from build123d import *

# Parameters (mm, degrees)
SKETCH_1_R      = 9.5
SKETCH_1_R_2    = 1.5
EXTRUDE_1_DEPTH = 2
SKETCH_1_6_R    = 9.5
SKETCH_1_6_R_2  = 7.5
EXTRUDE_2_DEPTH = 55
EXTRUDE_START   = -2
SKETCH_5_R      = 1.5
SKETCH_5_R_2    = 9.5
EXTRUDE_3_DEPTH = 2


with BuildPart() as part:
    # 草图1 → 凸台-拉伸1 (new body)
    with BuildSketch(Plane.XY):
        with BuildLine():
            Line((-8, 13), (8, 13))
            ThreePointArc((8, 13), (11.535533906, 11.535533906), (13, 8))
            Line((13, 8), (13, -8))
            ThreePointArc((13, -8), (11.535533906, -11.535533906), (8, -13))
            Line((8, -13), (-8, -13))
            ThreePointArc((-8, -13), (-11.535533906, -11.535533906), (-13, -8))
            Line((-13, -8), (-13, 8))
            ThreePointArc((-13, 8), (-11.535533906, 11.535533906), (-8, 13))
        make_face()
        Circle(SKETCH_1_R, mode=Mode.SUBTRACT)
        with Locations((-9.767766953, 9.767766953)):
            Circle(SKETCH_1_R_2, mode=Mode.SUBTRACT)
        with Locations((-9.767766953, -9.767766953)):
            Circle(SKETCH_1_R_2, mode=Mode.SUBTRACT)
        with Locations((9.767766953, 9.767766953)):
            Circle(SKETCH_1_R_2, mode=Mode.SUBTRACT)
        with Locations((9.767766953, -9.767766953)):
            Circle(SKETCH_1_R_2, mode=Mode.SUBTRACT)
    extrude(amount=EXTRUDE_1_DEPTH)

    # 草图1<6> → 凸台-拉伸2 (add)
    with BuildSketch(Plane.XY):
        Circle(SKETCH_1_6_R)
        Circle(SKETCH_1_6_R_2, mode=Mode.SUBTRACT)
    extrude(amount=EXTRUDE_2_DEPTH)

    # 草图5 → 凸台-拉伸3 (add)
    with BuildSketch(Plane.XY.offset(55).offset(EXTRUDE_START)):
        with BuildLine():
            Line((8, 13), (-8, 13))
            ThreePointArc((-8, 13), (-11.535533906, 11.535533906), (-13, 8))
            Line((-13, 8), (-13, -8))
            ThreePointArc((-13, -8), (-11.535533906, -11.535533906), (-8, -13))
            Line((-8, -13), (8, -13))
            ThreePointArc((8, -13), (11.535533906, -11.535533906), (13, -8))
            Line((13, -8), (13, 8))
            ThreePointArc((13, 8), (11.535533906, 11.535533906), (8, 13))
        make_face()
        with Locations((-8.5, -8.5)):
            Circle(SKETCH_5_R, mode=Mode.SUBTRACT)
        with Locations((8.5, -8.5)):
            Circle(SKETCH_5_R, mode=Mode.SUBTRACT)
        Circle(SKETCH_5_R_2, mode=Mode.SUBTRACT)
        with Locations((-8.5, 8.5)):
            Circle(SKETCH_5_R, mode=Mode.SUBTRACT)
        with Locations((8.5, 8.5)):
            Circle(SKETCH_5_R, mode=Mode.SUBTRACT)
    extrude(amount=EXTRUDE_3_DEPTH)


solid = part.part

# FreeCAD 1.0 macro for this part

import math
import FreeCAD as App
import Part
import Sketcher
Q = App.Units.Quantity

doc = App.newDocument("Part")
body = doc.addObject("PartDesign::Body", "Body")

# Sketch on XY plane
sketch1 = doc.addObject("Sketcher::SketchObject", "Sketch")
body.addObject(sketch1)
sketch1.AttachmentSupport = (doc.XY_Plane, [""])
sketch1.MapMode = "FlatFace"
sketch1.addGeometry([
    Part.LineSegment(App.Vector(8, 13, 0), App.Vector(-8, 13, 0)),  # 0
    Part.ArcOfCircle(Part.Circle(App.Vector(-8, 8, 0), App.Vector(0, 0, 1), 5), math.radians(90), math.radians(180)),  # 1
    Part.LineSegment(App.Vector(-13, 8, 0), App.Vector(-13, -8, 0)),  # 2
    Part.ArcOfCircle(Part.Circle(App.Vector(-8, -8, 0), App.Vector(0, 0, 1), 5), math.radians(180), math.radians(270)),  # 3
    Part.LineSegment(App.Vector(-8, -13, 0), App.Vector(8, -13, 0)),  # 4
    Part.ArcOfCircle(Part.Circle(App.Vector(8, -8, 0), App.Vector(0, 0, 1), 5), math.radians(-90), math.radians(0)),  # 5
    Part.LineSegment(App.Vector(13, -8, 0), App.Vector(13, 8, 0)),  # 6
    Part.ArcOfCircle(Part.Circle(App.Vector(8, 8, 0), App.Vector(0, 0, 1), 5), math.radians(0), math.radians(90)),  # 7
    Part.Circle(App.Vector(9.8, -9.8, 0), App.Vector(0, 0, 1), 1.5),  # 8
    Part.Circle(App.Vector(-9.8, -9.8, 0), App.Vector(0, 0, 1), 1.5),  # 9
    Part.Circle(App.Vector(9.8, 9.8, 0), App.Vector(0, 0, 1), 1.5),  # 10
    Part.Circle(App.Vector(0, 0, 0), App.Vector(0, 0, 1), 9.5),  # 11
    Part.Circle(App.Vector(-9.8, 9.8, 0), App.Vector(0, 0, 1), 1.5),  # 12
], False)
sketch1.addConstraint([
    Sketcher.Constraint("Tangent", 0, 2, 1, 1),
    Sketcher.Constraint("Tangent", 1, 2, 2, 1),
    Sketcher.Constraint("Tangent", 2, 2, 3, 1),
    Sketcher.Constraint("Tangent", 3, 2, 4, 1),
    Sketcher.Constraint("Tangent", 4, 2, 5, 1),
    Sketcher.Constraint("Tangent", 5, 2, 6, 1),
    Sketcher.Constraint("Tangent", 6, 2, 7, 1),
    Sketcher.Constraint("Tangent", 7, 2, 0, 1),
    Sketcher.Constraint("Horizontal", 0),
    Sketcher.Constraint("Vertical", 2),
    Sketcher.Constraint("Horizontal", 4),
    Sketcher.Constraint("Vertical", 6),
    Sketcher.Constraint("Coincident", 11, 3, -1, 1),
    Sketcher.Constraint("Equal", 1, 3),
    Sketcher.Constraint("Equal", 3, 5),
    Sketcher.Constraint("Equal", 5, 7),
    Sketcher.Constraint("Equal", 8, 9),
    Sketcher.Constraint("Equal", 9, 10),
    Sketcher.Constraint("Equal", 10, 12),
    Sketcher.Constraint("Symmetric", 1, 3, 5, 3, -1, 1),
    Sketcher.Constraint("Symmetric", 9, 3, 10, 3, -1, 1),
    Sketcher.Constraint("Symmetric", 8, 3, 12, 3, -1, 1),
    Sketcher.Constraint("Symmetric", 8, 3, 9, 3, -2),
    Sketcher.Constraint("Equal", 4, 2),
    Sketcher.Constraint("Diameter", 8, Q("3 mm")),
    Sketcher.Constraint("Diameter", 11, Q("19 mm")),
    Sketcher.Constraint("Radius", 1, Q("5 mm")),
    Sketcher.Constraint("DistanceX", 0, 2, 0, 1, Q("16 mm")),
    Sketcher.Constraint("DistanceX", -1, 1, 8, 3, Q("9.767767 mm")),
    Sketcher.Constraint("DistanceY", 8, 3, -1, 1, Q("9.767767 mm")),
])
pad1 = doc.addObject("PartDesign::Pad", "Pad")
body.addObject(pad1)
pad1.Profile = sketch1
pad1.Length = 2

# Sketch on XY plane
sketch2 = doc.addObject("Sketcher::SketchObject", "Sketch001")
body.addObject(sketch2)
sketch2.AttachmentSupport = (doc.XY_Plane, [""])
sketch2.MapMode = "FlatFace"
sketch2.addGeometry([
    Part.Circle(App.Vector(0, 0, 0), App.Vector(0, 0, 1), 10),
    Part.Circle(App.Vector(0, 0, 0), App.Vector(0, 0, 1), 8),
], False)
sketch2.addConstraint([
    Sketcher.Constraint("Coincident", 0, 3, -1, 1),
    Sketcher.Constraint("Coincident", 1, 3, -1, 1),
    Sketcher.Constraint("Diameter", 0, Q("19 mm")),
    Sketcher.Constraint("Diameter", 1, Q("15 mm")),
])
pad2 = doc.addObject("PartDesign::Pad", "Pad001")
body.addObject(pad2)
pad2.Profile = sketch2
pad2.Length = 55

# Sketch on XY plane
sketch3 = doc.addObject("Sketcher::SketchObject", "Sketch002")
body.addObject(sketch3)
sketch3.AttachmentSupport = (doc.XY_Plane, [""])
sketch3.MapMode = "FlatFace"
sketch3.AttachmentOffset = App.Placement(App.Vector(0, 0, 53), App.Rotation())
sketch3.addGeometry([
    Part.LineSegment(App.Vector(8, 13, 0), App.Vector(-8, 13, 0)),  # 0
    Part.ArcOfCircle(Part.Circle(App.Vector(-8, 8, 0), App.Vector(0, 0, 1), 5), math.radians(90), math.radians(180)),  # 1
    Part.LineSegment(App.Vector(-13, 8, 0), App.Vector(-13, -8, 0)),  # 2
    Part.ArcOfCircle(Part.Circle(App.Vector(-8, -8, 0), App.Vector(0, 0, 1), 5), math.radians(180), math.radians(270)),  # 3
    Part.LineSegment(App.Vector(-8, -13, 0), App.Vector(8, -13, 0)),  # 4
    Part.ArcOfCircle(Part.Circle(App.Vector(8, -8, 0), App.Vector(0, 0, 1), 5), math.radians(-90), math.radians(0)),  # 5
    Part.LineSegment(App.Vector(13, -8, 0), App.Vector(13, 8, 0)),  # 6
    Part.ArcOfCircle(Part.Circle(App.Vector(8, 8, 0), App.Vector(0, 0, 1), 5), math.radians(0), math.radians(90)),  # 7
    Part.Circle(App.Vector(-8.5, -8.5, 0), App.Vector(0, 0, 1), 1.5),  # 8
    Part.Circle(App.Vector(8.5, -8.5, 0), App.Vector(0, 0, 1), 1.5),  # 9
    Part.Circle(App.Vector(-8.5, 8.5, 0), App.Vector(0, 0, 1), 1.5),  # 10
    Part.Circle(App.Vector(0, 0, 0), App.Vector(0, 0, 1), 9.5),  # 11
    Part.Circle(App.Vector(8.5, 8.5, 0), App.Vector(0, 0, 1), 1.5),  # 12
], False)
sketch3.addConstraint([
    Sketcher.Constraint("Tangent", 0, 2, 1, 1),
    Sketcher.Constraint("Tangent", 1, 2, 2, 1),
    Sketcher.Constraint("Tangent", 2, 2, 3, 1),
    Sketcher.Constraint("Tangent", 3, 2, 4, 1),
    Sketcher.Constraint("Tangent", 4, 2, 5, 1),
    Sketcher.Constraint("Tangent", 5, 2, 6, 1),
    Sketcher.Constraint("Tangent", 6, 2, 7, 1),
    Sketcher.Constraint("Tangent", 7, 2, 0, 1),
    Sketcher.Constraint("Horizontal", 0),
    Sketcher.Constraint("Vertical", 2),
    Sketcher.Constraint("Horizontal", 4),
    Sketcher.Constraint("Vertical", 6),
    Sketcher.Constraint("Coincident", 11, 3, -1, 1),
    Sketcher.Constraint("Equal", 1, 3),
    Sketcher.Constraint("Equal", 3, 5),
    Sketcher.Constraint("Equal", 5, 7),
    Sketcher.Constraint("Equal", 8, 9),
    Sketcher.Constraint("Equal", 9, 10),
    Sketcher.Constraint("Equal", 10, 12),
    Sketcher.Constraint("Symmetric", 1, 3, 5, 3, -1, 1),
    Sketcher.Constraint("Symmetric", 9, 3, 10, 3, -1, 1),
    Sketcher.Constraint("Symmetric", 8, 3, 12, 3, -1, 1),
    Sketcher.Constraint("Symmetric", 8, 3, 9, 3, -2),
    Sketcher.Constraint("Equal", 4, 2),
    Sketcher.Constraint("Diameter", 8, Q("3 mm")),
    Sketcher.Constraint("Diameter", 11, Q("19 mm")),
    Sketcher.Constraint("Radius", 1, Q("5 mm")),
    Sketcher.Constraint("DistanceX", 0, 2, 0, 1, Q("16 mm")),
    Sketcher.Constraint("DistanceX", 8, 3, 9, 3, Q("17 mm")),
    Sketcher.Constraint("DistanceY", 8, 3, 10, 3, Q("17 mm")),
])
pad3 = doc.addObject("PartDesign::Pad", "Pad002")
body.addObject(pad3)
pad3.Profile = sketch3
pad3.Length = 2

doc.recompute()
